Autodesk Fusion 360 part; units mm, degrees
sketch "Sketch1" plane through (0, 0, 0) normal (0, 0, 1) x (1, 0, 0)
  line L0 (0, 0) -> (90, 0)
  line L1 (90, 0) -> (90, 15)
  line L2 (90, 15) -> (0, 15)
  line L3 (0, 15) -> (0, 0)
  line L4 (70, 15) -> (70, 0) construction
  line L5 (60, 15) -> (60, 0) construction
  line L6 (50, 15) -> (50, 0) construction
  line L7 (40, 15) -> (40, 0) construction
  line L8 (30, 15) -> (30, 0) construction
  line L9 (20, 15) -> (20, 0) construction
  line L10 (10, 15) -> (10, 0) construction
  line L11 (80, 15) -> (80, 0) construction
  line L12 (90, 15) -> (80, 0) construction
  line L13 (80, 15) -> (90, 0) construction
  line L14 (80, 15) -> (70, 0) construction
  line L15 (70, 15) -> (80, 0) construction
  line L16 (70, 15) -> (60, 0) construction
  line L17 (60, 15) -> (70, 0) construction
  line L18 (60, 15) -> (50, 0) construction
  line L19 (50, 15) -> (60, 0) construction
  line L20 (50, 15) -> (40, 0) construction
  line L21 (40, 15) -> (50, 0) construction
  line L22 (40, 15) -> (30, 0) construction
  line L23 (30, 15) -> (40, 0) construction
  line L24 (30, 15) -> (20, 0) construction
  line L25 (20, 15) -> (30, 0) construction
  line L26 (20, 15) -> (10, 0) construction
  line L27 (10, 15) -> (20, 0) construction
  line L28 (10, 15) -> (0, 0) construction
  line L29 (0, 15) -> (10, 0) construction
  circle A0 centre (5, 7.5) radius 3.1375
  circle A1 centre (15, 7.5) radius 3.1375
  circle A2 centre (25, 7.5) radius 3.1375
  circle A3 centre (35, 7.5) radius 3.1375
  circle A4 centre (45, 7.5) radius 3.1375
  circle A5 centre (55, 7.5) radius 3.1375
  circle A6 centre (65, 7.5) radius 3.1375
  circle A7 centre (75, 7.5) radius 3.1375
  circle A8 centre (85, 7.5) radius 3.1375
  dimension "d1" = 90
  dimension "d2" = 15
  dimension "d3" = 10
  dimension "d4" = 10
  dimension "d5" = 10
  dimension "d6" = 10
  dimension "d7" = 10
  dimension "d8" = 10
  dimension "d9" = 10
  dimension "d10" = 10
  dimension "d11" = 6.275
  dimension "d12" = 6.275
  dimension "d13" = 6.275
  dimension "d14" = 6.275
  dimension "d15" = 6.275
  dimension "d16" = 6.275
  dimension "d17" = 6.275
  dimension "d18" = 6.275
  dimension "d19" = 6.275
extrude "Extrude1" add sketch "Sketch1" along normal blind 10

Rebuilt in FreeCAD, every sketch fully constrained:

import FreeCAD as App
import Part
import Sketcher
from FreeCAD import Vector
Q = App.Units.Quantity


def add_polygon(sketch, points):
    """Adds a closed chain of lines whose ends are joined by coincident constraints."""
    first, n = sketch.GeometryCount, len(points)
    for a, b in zip(points, points[1:] + points[:1]):
        sketch.addGeometry(Part.LineSegment(App.Vector(*a, 0), App.Vector(*b, 0)), False)
    for i in range(n):
        sketch.addConstraint(Sketcher.Constraint("Coincident", first + i, 2, first + (i + 1) % n, 1))

doc = App.newDocument("Part")
body = doc.addObject("PartDesign::Body", "Body")

sketch1 = body.newObject("Sketcher::SketchObject", "Sketch")
sketch1.AttachmentSupport = (doc.getObject("XY_Plane"), [""])
sketch1.MapMode = "FlatFace"
add_polygon(sketch1, [(0, 15), (0, 0), (90, 0), (90, 15)])
sketch1.addGeometry(Part.Circle(Vector(5, 7.5, 0), Vector(0, 0, 1), 3.1375), False)
sketch1.addGeometry(Part.Circle(Vector(15, 7.5, 0), Vector(0, 0, 1), 3.1375), False)
sketch1.addGeometry(Part.Circle(Vector(25, 7.5, 0), Vector(0, 0, 1), 3.1375), False)
sketch1.addGeometry(Part.Circle(Vector(35, 7.5, 0), Vector(0, 0, 1), 3.1375), False)
sketch1.addGeometry(Part.Circle(Vector(45, 7.5, 0), Vector(0, 0, 1), 3.1375), False)
sketch1.addGeometry(Part.Circle(Vector(55, 7.5, 0), Vector(0, 0, 1), 3.1375), False)
sketch1.addGeometry(Part.Circle(Vector(65, 7.5, 0), Vector(0, 0, 1), 3.1375), False)
sketch1.addGeometry(Part.Circle(Vector(75, 7.5, 0), Vector(0, 0, 1), 3.1375), False)
sketch1.addGeometry(Part.Circle(Vector(85, 7.5, 0), Vector(0, 0, 1), 3.1375), False)
sketch1.addConstraint([
    Sketcher.Constraint("Vertical", 0),
    Sketcher.Constraint("Horizontal", 1),
    Sketcher.Constraint("Vertical", 2),
    Sketcher.Constraint("Horizontal", 3),
    Sketcher.Constraint("Coincident", 0, 2, -1, 1),
    Sketcher.Constraint("Equal", 4, 5),
    Sketcher.Constraint("Equal", 5, 6),
    Sketcher.Constraint("Equal", 6, 7),
    Sketcher.Constraint("Equal", 7, 8),
    Sketcher.Constraint("Equal", 8, 9),
    Sketcher.Constraint("Equal", 9, 10),
    Sketcher.Constraint("Equal", 10, 11),
    Sketcher.Constraint("Equal", 11, 12),
    Sketcher.Constraint("Horizontal", 4, 3, 5, 3),
    Sketcher.Constraint("Horizontal", 5, 3, 6, 3),
    Sketcher.Constraint("Horizontal", 6, 3, 7, 3),
    Sketcher.Constraint("Horizontal", 7, 3, 8, 3),
    Sketcher.Constraint("Horizontal", 8, 3, 9, 3),
    Sketcher.Constraint("Horizontal", 9, 3, 10, 3),
    Sketcher.Constraint("Horizontal", 10, 3, 11, 3),
    Sketcher.Constraint("Horizontal", 11, 3, 12, 3),
    Sketcher.Constraint("DistanceX", 1, 1, 1, 2, Q("90 mm")),
    Sketcher.Constraint("DistanceY", 0, 2, 0, 1, Q("15 mm")),
    Sketcher.Constraint("Diameter", 4, Q("6.275 mm")),
    Sketcher.Constraint("DistanceX", -1, 1, 5, 3, Q("15 mm")),
    Sketcher.Constraint("DistanceX", 4, 3, 5, 3, Q("10 mm")),
    Sketcher.Constraint("DistanceX", 5, 3, 6, 3, Q("10 mm")),
    Sketcher.Constraint("DistanceX", 6, 3, 7, 3, Q("10 mm")),
    Sketcher.Constraint("DistanceX", 7, 3, 8, 3, Q("10 mm")),
    Sketcher.Constraint("DistanceX", 8, 3, 9, 3, Q("10 mm")),
    Sketcher.Constraint("DistanceX", 9, 3, 10, 3, Q("10 mm")),
    Sketcher.Constraint("DistanceX", 10, 3, 11, 3, Q("10 mm")),
    Sketcher.Constraint("DistanceX", 11, 3, 12, 3, Q("10 mm")),
    Sketcher.Constraint("DistanceY", -1, 1, 4, 3, Q("7.5 mm")),
])
pad1 = body.newObject("PartDesign::Pad", "Pad")
pad1.Profile = sketch1
pad1.Length = 10

doc.recompute()
